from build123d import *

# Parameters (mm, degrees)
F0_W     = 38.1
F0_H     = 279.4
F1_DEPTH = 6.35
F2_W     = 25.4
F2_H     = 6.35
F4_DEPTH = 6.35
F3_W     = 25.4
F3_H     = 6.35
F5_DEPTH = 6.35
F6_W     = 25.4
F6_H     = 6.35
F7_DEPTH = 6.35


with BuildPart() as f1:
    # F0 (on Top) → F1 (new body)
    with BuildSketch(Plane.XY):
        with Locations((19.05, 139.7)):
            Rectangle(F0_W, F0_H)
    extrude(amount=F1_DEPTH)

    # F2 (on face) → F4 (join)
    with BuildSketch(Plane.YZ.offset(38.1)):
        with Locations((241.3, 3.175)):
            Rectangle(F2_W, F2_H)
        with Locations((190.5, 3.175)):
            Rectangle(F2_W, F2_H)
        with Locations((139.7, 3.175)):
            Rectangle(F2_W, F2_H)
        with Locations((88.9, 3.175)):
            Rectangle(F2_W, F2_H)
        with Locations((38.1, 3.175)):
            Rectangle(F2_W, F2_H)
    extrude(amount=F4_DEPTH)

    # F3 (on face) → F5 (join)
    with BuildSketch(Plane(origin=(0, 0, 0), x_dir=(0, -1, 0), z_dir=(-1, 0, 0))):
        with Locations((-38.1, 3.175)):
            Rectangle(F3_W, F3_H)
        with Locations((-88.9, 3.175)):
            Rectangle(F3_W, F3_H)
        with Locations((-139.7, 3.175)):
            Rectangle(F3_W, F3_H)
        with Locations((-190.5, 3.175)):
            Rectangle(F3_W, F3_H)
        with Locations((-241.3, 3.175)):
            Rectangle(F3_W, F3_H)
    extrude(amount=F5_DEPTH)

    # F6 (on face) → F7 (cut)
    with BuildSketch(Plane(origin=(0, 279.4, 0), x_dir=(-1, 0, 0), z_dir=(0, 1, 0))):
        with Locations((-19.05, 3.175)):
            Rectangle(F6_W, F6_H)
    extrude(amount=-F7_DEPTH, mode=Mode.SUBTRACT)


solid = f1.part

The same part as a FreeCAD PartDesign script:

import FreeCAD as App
import Part
import Sketcher
from FreeCAD import Vector
Q = App.Units.Quantity

doc = App.newDocument("Part")
params = doc.addObject("Spreadsheet::Sheet", "Params")
for row, (alias, value) in enumerate([
    ("sketch1_height", "11 in"),
    ("sketch1_width", "1.5 in"),
    ("pad1_length", "0.25 in"),
    ("sketch2_width", "1 in"),
    ("sketch2_height", "0.25 in"),
    ("pad2_length", "0.25 in"),
    ("sketch3_width", "1 in"),
    ("sketch3_height", "0.25 in"),
    ("pad3_length", "0.25 in"),
    ("sketch4_width", "1 in"),
    ("sketch4_height", "0.25 in"),
    ("pocket1_length", "0.25 in"),
], start=1):
    params.set(f"A{row}", alias)
    params.set(f"B{row}", "=" + value)
    params.setAlias(f"B{row}", alias)

body = doc.addObject("PartDesign::Body", "Body")

# Sketch on XY plane
sketch1 = body.newObject("Sketcher::SketchObject", "Sketch")
sketch1.AttachmentSupport = (doc.getObject("XY_Plane"), [""])
sketch1.MapMode = "FlatFace"
sketch1.addGeometry([
    Part.LineSegment(Vector(0, 279, 0), Vector(0, 0, 0)),
    Part.LineSegment(Vector(0, 0, 0), Vector(38, 0, 0)),
    Part.LineSegment(Vector(38, 0, 0), Vector(38, 279, 0)),
    Part.LineSegment(Vector(38, 279, 0), Vector(0, 279, 0)),
], False)
sketch1.addConstraint([
    Sketcher.Constraint("Coincident", 0, 2, 1, 1),
    Sketcher.Constraint("Coincident", 1, 2, 2, 1),
    Sketcher.Constraint("Coincident", 2, 2, 3, 1),
    Sketcher.Constraint("Coincident", 3, 2, 0, 1),
    Sketcher.Constraint("Vertical", 0),
    Sketcher.Constraint("Horizontal", 1),
    Sketcher.Constraint("Vertical", 2),
    Sketcher.Constraint("Horizontal", 3),
    Sketcher.Constraint("Coincident", 0, 2, -1, 1),
    Sketcher.Constraint("DistanceY", 0, 2, 0, 1, Q("11 in")),
    Sketcher.Constraint("DistanceX", 1, 1, 1, 2, Q("1.5 in")),
])
sketch1.setExpression("Constraints[9]", "Params.sketch1_height")
sketch1.setExpression("Constraints[10]", "Params.sketch1_width")
pad1 = body.newObject("PartDesign::Pad", "Pad")
pad1.Profile = sketch1
pad1.setExpression("Length", "Params.pad1_length")

# Sketch on YZ plane
sketch2 = body.newObject("Sketcher::SketchObject", "Sketch001")
sketch2.AttachmentSupport = (doc.getObject("YZ_Plane"), [""])
sketch2.MapMode = "FlatFace"
sketch2.AttachmentOffset = App.Placement(Vector(0, 0, 1.5 * 25.4), App.Rotation())
sketch2.addGeometry([
    Part.LineSegment(Vector(229, 6, 0), Vector(229, 0, 0)),  # 0
    Part.LineSegment(Vector(229, 0, 0), Vector(254, 0, 0)),  # 1
    Part.LineSegment(Vector(254, 0, 0), Vector(254, 6, 0)),  # 2
    Part.LineSegment(Vector(254, 6, 0), Vector(229, 6, 0)),  # 3
    Part.LineSegment(Vector(178, 6, 0), Vector(178, 0, 0)),  # 4
    Part.LineSegment(Vector(178, 0, 0), Vector(203, 0, 0)),  # 5
    Part.LineSegment(Vector(203, 0, 0), Vector(203, 6, 0)),  # 6
    Part.LineSegment(Vector(203, 6, 0), Vector(178, 6, 0)),  # 7
    Part.LineSegment(Vector(127, 6, 0), Vector(127, 0, 0)),  # 8
    Part.LineSegment(Vector(127, 0, 0), Vector(152, 0, 0)),  # 9
    Part.LineSegment(Vector(152, 0, 0), Vector(152, 6, 0)),  # 10
    Part.LineSegment(Vector(152, 6, 0), Vector(127, 6, 0)),  # 11
    Part.LineSegment(Vector(76, 6, 0), Vector(76, 0, 0)),  # 12
    Part.LineSegment(Vector(76, 0, 0), Vector(102, 0, 0)),  # 13
    Part.LineSegment(Vector(102, 0, 0), Vector(102, 6, 0)),  # 14
    Part.LineSegment(Vector(102, 6, 0), Vector(76, 6, 0)),  # 15
    Part.LineSegment(Vector(25, 6, 0), Vector(25, 0, 0)),  # 16
    Part.LineSegment(Vector(25, 0, 0), Vector(51, 0, 0)),  # 17
    Part.LineSegment(Vector(51, 0, 0), Vector(51, 6, 0)),  # 18
    Part.LineSegment(Vector(51, 6, 0), Vector(25, 6, 0)),  # 19
], False)
sketch2.addConstraint([
    Sketcher.Constraint("Coincident", 0, 2, 1, 1),
    Sketcher.Constraint("Coincident", 1, 2, 2, 1),
    Sketcher.Constraint("Coincident", 2, 2, 3, 1),
    Sketcher.Constraint("Coincident", 3, 2, 0, 1),
    Sketcher.Constraint("Coincident", 4, 2, 5, 1),
    Sketcher.Constraint("Coincident", 5, 2, 6, 1),
    Sketcher.Constraint("Coincident", 6, 2, 7, 1),
    Sketcher.Constraint("Coincident", 7, 2, 4, 1),
    Sketcher.Constraint("Coincident", 8, 2, 9, 1),
    Sketcher.Constraint("Coincident", 9, 2, 10, 1),
    Sketcher.Constraint("Coincident", 10, 2, 11, 1),
    Sketcher.Constraint("Coincident", 11, 2, 8, 1),
    Sketcher.Constraint("Coincident", 12, 2, 13, 1),
    Sketcher.Constraint("Coincident", 13, 2, 14, 1),
    Sketcher.Constraint("Coincident", 14, 2, 15, 1),
    Sketcher.Constraint("Coincident", 15, 2, 12, 1),
    Sketcher.Constraint("Coincident", 16, 2, 17, 1),
    Sketcher.Constraint("Coincident", 17, 2, 18, 1),
    Sketcher.Constraint("Coincident", 18, 2, 19, 1),
    Sketcher.Constraint("Coincident", 19, 2, 16, 1),
    Sketcher.Constraint("Vertical", 0),
    Sketcher.Constraint("Horizontal", 1),
    Sketcher.Constraint("Vertical", 2),
    Sketcher.Constraint("Horizontal", 3),
    Sketcher.Constraint("Vertical", 4),
    Sketcher.Constraint("Horizontal", 5),
    Sketcher.Constraint("Vertical", 6),
    Sketcher.Constraint("Horizontal", 7),
    Sketcher.Constraint("Vertical", 8),
    Sketcher.Constraint("Horizontal", 9),
    Sketcher.Constraint("Vertical", 10),
    Sketcher.Constraint("Horizontal", 11),
    Sketcher.Constraint("Vertical", 12),
    Sketcher.Constraint("Horizontal", 13),
    Sketcher.Constraint("Vertical", 14),
    Sketcher.Constraint("Horizontal", 15),
    Sketcher.Constraint("Vertical", 16),
    Sketcher.Constraint("Horizontal", 17),
    Sketcher.Constraint("Vertical", 18),
    Sketcher.Constraint("Horizontal", 19),
    Sketcher.Constraint("PointOnObject", 0, 2, -1),
    Sketcher.Constraint("PointOnObject", 4, 2, -1),
    Sketcher.Constraint("PointOnObject", 8, 2, -1),
    Sketcher.Constraint("PointOnObject", 12, 2, -1),
    Sketcher.Constraint("PointOnObject", 16, 2, -1),
    Sketcher.Constraint("Horizontal", 3, 2, 6, 2),
    Sketcher.Constraint("Horizontal", 7, 2, 10, 2),
    Sketcher.Constraint("Horizontal", 11, 2, 14, 2),
    Sketcher.Constraint("Horizontal", 15, 2, 18, 2),
    Sketcher.Constraint("Equal", 3, 5),
    Sketcher.Constraint("Equal", 7, 9),
    Sketcher.Constraint("Equal", 11, 13),
    Sketcher.Constraint("Equal", 15, 17),
    Sketcher.Constraint("DistanceX", 1, 1, 1, 2, Q("1 in")),
    Sketcher.Constraint("DistanceX", -1, 1, 0, 2, Q("9 in")),
    Sketcher.Constraint("DistanceX", -1, 1, 4, 2, Q("7 in")),
    Sketcher.Constraint("DistanceX", -1, 1, 8, 2, Q("5 in")),
    Sketcher.Constraint("DistanceX", -1, 1, 12, 2, Q("3 in")),
    Sketcher.Constraint("DistanceX", -1, 1, 16, 2, Q("1 in")),
    Sketcher.Constraint("DistanceY", 0, 2, 0, 1, Q("0.25 in")),
])
sketch2.setExpression("Constraints[53]", "Params.sketch2_width")
sketch2.setExpression("Constraints[59]", "Params.sketch2_height")
pad2 = body.newObject("PartDesign::Pad", "Pad001")
pad2.Profile = sketch2
pad2.setExpression("Length", "Params.pad2_length")

# Sketch on YZ plane
sketch3 = body.newObject("Sketcher::SketchObject", "Sketch002")
sketch3.AttachmentSupport = (doc.getObject("YZ_Plane"), [""])
sketch3.MapMode = "FlatFace"
sketch3.addGeometry([
    Part.LineSegment(Vector(51, 6, 0), Vector(51, 0, 0)),  # 0
    Part.LineSegment(Vector(51, 0, 0), Vector(25, 0, 0)),  # 1
    Part.LineSegment(Vector(25, 0, 0), Vector(25, 6, 0)),  # 2
    Part.LineSegment(Vector(25, 6, 0), Vector(51, 6, 0)),  # 3
    Part.LineSegment(Vector(102, 6, 0), Vector(102, 0, 0)),  # 4
    Part.LineSegment(Vector(102, 0, 0), Vector(76, 0, 0)),  # 5
    Part.LineSegment(Vector(76, 0, 0), Vector(76, 6, 0)),  # 6
    Part.LineSegment(Vector(76, 6, 0), Vector(102, 6, 0)),  # 7
    Part.LineSegment(Vector(152, 6, 0), Vector(152, 0, 0)),  # 8
    Part.LineSegment(Vector(152, 0, 0), Vector(127, 0, 0)),  # 9
    Part.LineSegment(Vector(127, 0, 0), Vector(127, 6, 0)),  # 10
    Part.LineSegment(Vector(127, 6, 0), Vector(152, 6, 0)),  # 11
    Part.LineSegment(Vector(203, 6, 0), Vector(203, 0, 0)),  # 12
    Part.LineSegment(Vector(203, 0, 0), Vector(178, 0, 0)),  # 13
    Part.LineSegment(Vector(178, 0, 0), Vector(178, 6, 0)),  # 14
    Part.LineSegment(Vector(178, 6, 0), Vector(203, 6, 0)),  # 15
    Part.LineSegment(Vector(254, 6, 0), Vector(254, 0, 0)),  # 16
    Part.LineSegment(Vector(254, 0, 0), Vector(229, 0, 0)),  # 17
    Part.LineSegment(Vector(229, 0, 0), Vector(229, 6, 0)),  # 18
    Part.LineSegment(Vector(229, 6, 0), Vector(254, 6, 0)),  # 19
], False)
sketch3.addConstraint([
    Sketcher.Constraint("Coincident", 0, 2, 1, 1),
    Sketcher.Constraint("Coincident", 1, 2, 2, 1),
    Sketcher.Constraint("Coincident", 2, 2, 3, 1),
    Sketcher.Constraint("Coincident", 3, 2, 0, 1),
    Sketcher.Constraint("Coincident", 4, 2, 5, 1),
    Sketcher.Constraint("Coincident", 5, 2, 6, 1),
    Sketcher.Constraint("Coincident", 6, 2, 7, 1),
    Sketcher.Constraint("Coincident", 7, 2, 4, 1),
    Sketcher.Constraint("Coincident", 8, 2, 9, 1),
    Sketcher.Constraint("Coincident", 9, 2, 10, 1),
    Sketcher.Constraint("Coincident", 10, 2, 11, 1),
    Sketcher.Constraint("Coincident", 11, 2, 8, 1),
    Sketcher.Constraint("Coincident", 12, 2, 13, 1),
    Sketcher.Constraint("Coincident", 13, 2, 14, 1),
    Sketcher.Constraint("Coincident", 14, 2, 15, 1),
    Sketcher.Constraint("Coincident", 15, 2, 12, 1),
    Sketcher.Constraint("Coincident", 16, 2, 17, 1),
    Sketcher.Constraint("Coincident", 17, 2, 18, 1),
    Sketcher.Constraint("Coincident", 18, 2, 19, 1),
    Sketcher.Constraint("Coincident", 19, 2, 16, 1),
    Sketcher.Constraint("Vertical", 0),
    Sketcher.Constraint("Horizontal", 1),
    Sketcher.Constraint("Vertical", 2),
    Sketcher.Constraint("Horizontal", 3),
    Sketcher.Constraint("Vertical", 4),
    Sketcher.Constraint("Horizontal", 5),
    Sketcher.Constraint("Vertical", 6),
    Sketcher.Constraint("Horizontal", 7),
    Sketcher.Constraint("Vertical", 8),
    Sketcher.Constraint("Horizontal", 9),
    Sketcher.Constraint("Vertical", 10),
    Sketcher.Constraint("Horizontal", 11),
    Sketcher.Constraint("Vertical", 12),
    Sketcher.Constraint("Horizontal", 13),
    Sketcher.Constraint("Vertical", 14),
    Sketcher.Constraint("Horizontal", 15),
    Sketcher.Constraint("Vertical", 16),
    Sketcher.Constraint("Horizontal", 17),
    Sketcher.Constraint("Vertical", 18),
    Sketcher.Constraint("Horizontal", 19),
    Sketcher.Constraint("PointOnObject", 0, 2, -1),
    Sketcher.Constraint("PointOnObject", 4, 2, -1),
    Sketcher.Constraint("PointOnObject", 8, 2, -1),
    Sketcher.Constraint("PointOnObject", 12, 2, -1),
    Sketcher.Constraint("PointOnObject", 16, 2, -1),
    Sketcher.Constraint("Horizontal", 3, 2, 6, 2),
    Sketcher.Constraint("Horizontal", 7, 2, 10, 2),
    Sketcher.Constraint("Horizontal", 11, 2, 14, 2),
    Sketcher.Constraint("Horizontal", 15, 2, 18, 2),
    Sketcher.Constraint("Equal", 3, 5),
    Sketcher.Constraint("Equal", 7, 9),
    Sketcher.Constraint("Equal", 11, 13),
    Sketcher.Constraint("Equal", 15, 17),
    Sketcher.Constraint("DistanceX", 1, 2, 1, 1, Q("1 in")),
    Sketcher.Constraint("DistanceX", -1, 1, 0, 2, Q("2 in")),
    Sketcher.Constraint("DistanceX", -1, 1, 4, 2, Q("4 in")),
    Sketcher.Constraint("DistanceX", -1, 1, 8, 2, Q("6 in")),
    Sketcher.Constraint("DistanceX", -1, 1, 12, 2, Q("8 in")),
    Sketcher.Constraint("DistanceX", -1, 1, 16, 2, Q("10 in")),
    Sketcher.Constraint("DistanceY", 0, 2, 0, 1, Q("0.25 in")),
])
sketch3.setExpression("Constraints[53]", "Params.sketch3_width")
sketch3.setExpression("Constraints[59]", "Params.sketch3_height")
pad3 = body.newObject("PartDesign::Pad", "Pad002")
pad3.Profile = sketch3
pad3.setExpression("Length", "Params.pad3_length")
pad3.Reversed = True

# Sketch on XZ plane
sketch4 = body.newObject("Sketcher::SketchObject", "Sketch003")
sketch4.AttachmentSupport = (doc.getObject("XZ_Plane"), [""])
sketch4.MapMode = "FlatFace"
sketch4.AttachmentOffset = App.Placement(Vector(0, 0, -11 * 25.4), App.Rotation())
sketch4.addGeometry([
    Part.LineSegment(Vector(32, 6, 0), Vector(32, 0, 0)),
    Part.LineSegment(Vector(32, 0, 0), Vector(6, 0, 0)),
    Part.LineSegment(Vector(6, 0, 0), Vector(6, 6, 0)),
    Part.LineSegment(Vector(6, 6, 0), Vector(32, 6, 0)),
], False)
sketch4.addConstraint([
    Sketcher.Constraint("Coincident", 0, 2, 1, 1),
    Sketcher.Constraint("Coincident", 1, 2, 2, 1),
    Sketcher.Constraint("Coincident", 2, 2, 3, 1),
    Sketcher.Constraint("Coincident", 3, 2, 0, 1),
    Sketcher.Constraint("Vertical", 0),
    Sketcher.Constraint("Horizontal", 1),
    Sketcher.Constraint("Vertical", 2),
    Sketcher.Constraint("Horizontal", 3),
    Sketcher.Constraint("PointOnObject", 0, 2, -1),
    Sketcher.Constraint("DistanceX", 1, 2, 1, 1, Q("1 in")),
    Sketcher.Constraint("DistanceY", 0, 2, 0, 1, Q("0.25 in")),
    Sketcher.Constraint("DistanceX", -1, 1, 0, 2, Q("1.25 in")),
])
sketch4.setExpression("Constraints[9]", "Params.sketch4_width")
sketch4.setExpression("Constraints[10]", "Params.sketch4_height")
pocket1 = body.newObject("PartDesign::Pocket", "Pocket")
pocket1.Profile = sketch4
pocket1.setExpression("Length", "Params.pocket1_length")
pocket1.Reversed = True

doc.recompute()
